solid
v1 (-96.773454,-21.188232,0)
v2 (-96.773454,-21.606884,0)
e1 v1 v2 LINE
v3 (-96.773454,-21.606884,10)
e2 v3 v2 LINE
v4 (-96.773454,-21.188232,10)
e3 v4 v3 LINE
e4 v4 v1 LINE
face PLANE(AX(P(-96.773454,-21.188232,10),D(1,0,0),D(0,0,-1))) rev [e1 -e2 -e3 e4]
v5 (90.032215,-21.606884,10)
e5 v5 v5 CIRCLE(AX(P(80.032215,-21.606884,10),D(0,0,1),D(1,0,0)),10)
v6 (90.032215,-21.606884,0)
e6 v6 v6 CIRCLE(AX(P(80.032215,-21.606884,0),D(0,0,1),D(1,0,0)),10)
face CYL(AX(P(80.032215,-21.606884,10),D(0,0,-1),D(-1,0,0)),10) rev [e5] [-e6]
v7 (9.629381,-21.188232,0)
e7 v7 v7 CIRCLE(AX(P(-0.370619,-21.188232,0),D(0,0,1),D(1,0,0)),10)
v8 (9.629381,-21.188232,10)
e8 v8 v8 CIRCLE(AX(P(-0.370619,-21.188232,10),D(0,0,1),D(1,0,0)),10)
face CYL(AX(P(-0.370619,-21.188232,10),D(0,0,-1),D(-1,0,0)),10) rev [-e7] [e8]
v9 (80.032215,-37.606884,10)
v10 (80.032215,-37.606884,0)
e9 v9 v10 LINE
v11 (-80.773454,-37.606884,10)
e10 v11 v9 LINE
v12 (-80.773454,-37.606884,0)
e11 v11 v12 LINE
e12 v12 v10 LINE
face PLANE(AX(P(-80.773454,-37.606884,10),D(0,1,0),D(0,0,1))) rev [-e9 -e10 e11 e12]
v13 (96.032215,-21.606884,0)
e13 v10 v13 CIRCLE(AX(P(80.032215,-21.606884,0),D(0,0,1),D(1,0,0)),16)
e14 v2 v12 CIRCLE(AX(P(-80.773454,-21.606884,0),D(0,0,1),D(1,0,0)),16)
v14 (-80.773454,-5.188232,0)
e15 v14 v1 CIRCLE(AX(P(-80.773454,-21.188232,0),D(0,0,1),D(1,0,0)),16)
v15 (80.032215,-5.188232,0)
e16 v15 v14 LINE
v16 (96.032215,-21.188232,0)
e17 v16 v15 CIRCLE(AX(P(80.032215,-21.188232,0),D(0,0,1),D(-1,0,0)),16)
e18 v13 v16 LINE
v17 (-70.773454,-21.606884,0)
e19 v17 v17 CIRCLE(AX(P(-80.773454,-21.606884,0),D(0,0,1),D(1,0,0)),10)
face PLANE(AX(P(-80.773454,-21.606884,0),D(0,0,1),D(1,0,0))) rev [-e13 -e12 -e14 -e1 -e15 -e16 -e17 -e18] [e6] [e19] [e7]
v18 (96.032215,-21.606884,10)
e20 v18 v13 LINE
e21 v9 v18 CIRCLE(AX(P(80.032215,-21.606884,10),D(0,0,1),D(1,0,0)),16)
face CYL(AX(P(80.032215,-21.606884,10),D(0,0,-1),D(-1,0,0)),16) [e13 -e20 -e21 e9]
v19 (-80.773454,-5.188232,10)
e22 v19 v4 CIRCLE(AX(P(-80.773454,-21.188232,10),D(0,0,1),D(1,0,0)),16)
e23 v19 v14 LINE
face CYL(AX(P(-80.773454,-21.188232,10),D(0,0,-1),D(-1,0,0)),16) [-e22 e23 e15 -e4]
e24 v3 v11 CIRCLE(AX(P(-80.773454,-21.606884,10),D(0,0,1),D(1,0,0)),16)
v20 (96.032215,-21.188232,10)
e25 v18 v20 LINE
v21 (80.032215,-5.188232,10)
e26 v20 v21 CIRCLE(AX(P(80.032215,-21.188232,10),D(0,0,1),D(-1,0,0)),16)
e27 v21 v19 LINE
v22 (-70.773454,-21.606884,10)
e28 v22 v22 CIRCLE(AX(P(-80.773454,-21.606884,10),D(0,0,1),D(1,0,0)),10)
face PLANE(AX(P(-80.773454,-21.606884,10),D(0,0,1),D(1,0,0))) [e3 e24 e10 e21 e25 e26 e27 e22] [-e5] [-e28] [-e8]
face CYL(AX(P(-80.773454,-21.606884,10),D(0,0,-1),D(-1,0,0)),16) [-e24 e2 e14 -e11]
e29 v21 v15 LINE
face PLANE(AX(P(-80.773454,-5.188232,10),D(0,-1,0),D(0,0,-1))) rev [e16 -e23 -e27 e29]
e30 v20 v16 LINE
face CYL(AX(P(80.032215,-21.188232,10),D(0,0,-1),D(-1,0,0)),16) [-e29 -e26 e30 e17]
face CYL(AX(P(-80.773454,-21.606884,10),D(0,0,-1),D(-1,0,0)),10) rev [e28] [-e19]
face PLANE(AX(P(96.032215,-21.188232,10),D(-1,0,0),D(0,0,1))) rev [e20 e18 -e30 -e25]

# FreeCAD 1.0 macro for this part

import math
import FreeCAD as App
import Part
import Sketcher

V = App.Vector

doc = App.newDocument("Part")
body = doc.addObject("PartDesign::Body", "Body")

# Sketch on XY plane
sketch1 = body.newObject("Sketcher::SketchObject", "Sketch")
sketch1.AttachmentSupport = (doc.getObject("XY_Plane"), [""])
sketch1.MapMode = "FlatFace"
sketch1.addGeometry(Part.LineSegment(V(80.03, -5.19, 0), V(-80.77, -5.19, 0)), False)
sketch1.addGeometry(Part.ArcOfCircle(Part.Circle(V(-80.77, -21.19, 0), V(0, 0, 1), 16), math.radians(90), math.radians(180)), False)
sketch1.addGeometry(Part.LineSegment(V(-96.77, -21.19, 0), V(-96.77, -21.61, 0)), False)
sketch1.addGeometry(Part.ArcOfCircle(Part.Circle(V(-80.77, -21.61, 0), V(0, 0, 1), 16), math.radians(180), math.radians(270)), False)
sketch1.addGeometry(Part.LineSegment(V(-80.77, -37.61, 0), V(80.03, -37.61, 0)), False)
sketch1.addGeometry(Part.ArcOfCircle(Part.Circle(V(80.03, -21.61, 0), V(0, 0, 1), 16), math.radians(-90), math.radians(0)), False)
sketch1.addGeometry(Part.LineSegment(V(96.03, -21.61, 0), V(96.03, -21.19, 0)), False)
sketch1.addGeometry(Part.ArcOfCircle(Part.Circle(V(80.03, -21.19, 0), V(0, 0, 1), 16), math.radians(0), math.radians(90)), False)
sketch1.addGeometry(Part.Circle(V(80.03, -21.61, 0), V(0, 0, 1), 10), False)
sketch1.addGeometry(Part.Circle(V(-80.77, -21.61, 0), V(0, 0, 1), 10), False)
sketch1.addGeometry(Part.Circle(V(-0.37, -21.19, 0), V(0, 0, 1), 10), False)
sketch1.addConstraint(Sketcher.Constraint("Tangent", 0, 2, 1, 1))
sketch1.addConstraint(Sketcher.Constraint("Tangent", 1, 2, 2, 1))
sketch1.addConstraint(Sketcher.Constraint("Tangent", 2, 2, 3, 1))
sketch1.addConstraint(Sketcher.Constraint("Tangent", 3, 2, 4, 1))
sketch1.addConstraint(Sketcher.Constraint("Tangent", 4, 2, 5, 1))
sketch1.addConstraint(Sketcher.Constraint("Tangent", 5, 2, 6, 1))
sketch1.addConstraint(Sketcher.Constraint("Tangent", 6, 2, 7, 1))
sketch1.addConstraint(Sketcher.Constraint("Tangent", 7, 2, 0, 1))
sketch1.addConstraint(Sketcher.Constraint("Horizontal", 0))
sketch1.addConstraint(Sketcher.Constraint("Vertical", 2))
sketch1.addConstraint(Sketcher.Constraint("Horizontal", 4))
sketch1.addConstraint(Sketcher.Constraint("Vertical", 6))
sketch1.addConstraint(Sketcher.Constraint("Coincident", 8, 3, 5, 3))
sketch1.addConstraint(Sketcher.Constraint("Coincident", 9, 3, 3, 3))
sketch1.addConstraint(Sketcher.Constraint("Equal", 1, 3))
sketch1.addConstraint(Sketcher.Constraint("Equal", 3, 5))
sketch1.addConstraint(Sketcher.Constraint("Equal", 5, 7))
sketch1.addConstraint(Sketcher.Constraint("Equal", 8, 9))
sketch1.addConstraint(Sketcher.Constraint("Equal", 9, 10))
sketch1.addConstraint(Sketcher.Constraint("Horizontal", 7, 3, 10, 3))
sketch1.addConstraint(Sketcher.Constraint("Diameter", 8, 20.0))
sketch1.addConstraint(Sketcher.Constraint("Radius", 1, 16.0))
sketch1.addConstraint(Sketcher.Constraint("DistanceX", 0, 2, 0, 1, 160.805668))
sketch1.addConstraint(Sketcher.Constraint("DistanceY", 2, 2, 2, 1, 0.418652))
sketch1.addConstraint(Sketcher.Constraint("DistanceY", 1, 3, -1, 1, 21.188232))
sketch1.addConstraint(Sketcher.Constraint("DistanceX", 10, 3, -1, 1, 0.370619))
sketch1.addConstraint(Sketcher.Constraint("DistanceX", 1, 3, -1, 1, 80.773454))
pad1 = body.newObject("PartDesign::Pad", "Pad")
pad1.Profile = sketch1
pad1.Length = 10

doc.recompute()
